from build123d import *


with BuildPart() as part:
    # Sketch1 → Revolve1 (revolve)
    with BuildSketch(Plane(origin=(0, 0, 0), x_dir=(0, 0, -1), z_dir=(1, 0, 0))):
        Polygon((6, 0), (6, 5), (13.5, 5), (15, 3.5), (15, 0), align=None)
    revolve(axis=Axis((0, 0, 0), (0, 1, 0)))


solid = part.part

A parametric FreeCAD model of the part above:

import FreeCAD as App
import Part
import Sketcher
from FreeCAD import Vector
Q = App.Units.Quantity


def add_polygon(sketch, points):
    """Adds a closed chain of lines whose ends are joined by coincident constraints."""
    first, n = sketch.GeometryCount, len(points)
    for a, b in zip(points, points[1:] + points[:1]):
        sketch.addGeometry(Part.LineSegment(App.Vector(*a, 0), App.Vector(*b, 0)), False)
    for i in range(n):
        sketch.addConstraint(Sketcher.Constraint("Coincident", first + i, 2, first + (i + 1) % n, 1))

doc = App.newDocument("Part")
body = doc.addObject("PartDesign::Body", "Body")

sketch1 = body.newObject("Sketcher::SketchObject", "Sketch")
sketch1.AttachmentSupport = (doc.getObject("YZ_Plane"), [""])
sketch1.MapMode = "FlatFace"
add_polygon(sketch1, [(5, -6), (0, -6), (0, -15), (3.5, -15), (5, -13.5)])
sketch1.addConstraint([
    Sketcher.Constraint("Horizontal", 0),
    Sketcher.Constraint("Vertical", 1),
    Sketcher.Constraint("Horizontal", 2),
    Sketcher.Constraint("Vertical", 4),
    Sketcher.Constraint("PointOnObject", 0, 2, -2),
    Sketcher.Constraint("DistanceX", 0, 2, 0, 1, Q("5 mm")),
    Sketcher.Constraint("DistanceY", 1, 2, 1, 1, Q("9 mm")),
    Sketcher.Constraint("Angle", 3, Q("45 deg")),
    Sketcher.Constraint("DistanceX", 2, 1, 2, 2, Q("3.5 mm")),
    Sketcher.Constraint("DistanceY", 0, 2, -1, 1, Q("6 mm")),
])
revolution = body.newObject("PartDesign::Revolution", "Revolution")
revolution.Profile = sketch1
revolution.ReferenceAxis = (sketch1, ["H_Axis"])
revolution.Angle = 360

doc.recompute()
